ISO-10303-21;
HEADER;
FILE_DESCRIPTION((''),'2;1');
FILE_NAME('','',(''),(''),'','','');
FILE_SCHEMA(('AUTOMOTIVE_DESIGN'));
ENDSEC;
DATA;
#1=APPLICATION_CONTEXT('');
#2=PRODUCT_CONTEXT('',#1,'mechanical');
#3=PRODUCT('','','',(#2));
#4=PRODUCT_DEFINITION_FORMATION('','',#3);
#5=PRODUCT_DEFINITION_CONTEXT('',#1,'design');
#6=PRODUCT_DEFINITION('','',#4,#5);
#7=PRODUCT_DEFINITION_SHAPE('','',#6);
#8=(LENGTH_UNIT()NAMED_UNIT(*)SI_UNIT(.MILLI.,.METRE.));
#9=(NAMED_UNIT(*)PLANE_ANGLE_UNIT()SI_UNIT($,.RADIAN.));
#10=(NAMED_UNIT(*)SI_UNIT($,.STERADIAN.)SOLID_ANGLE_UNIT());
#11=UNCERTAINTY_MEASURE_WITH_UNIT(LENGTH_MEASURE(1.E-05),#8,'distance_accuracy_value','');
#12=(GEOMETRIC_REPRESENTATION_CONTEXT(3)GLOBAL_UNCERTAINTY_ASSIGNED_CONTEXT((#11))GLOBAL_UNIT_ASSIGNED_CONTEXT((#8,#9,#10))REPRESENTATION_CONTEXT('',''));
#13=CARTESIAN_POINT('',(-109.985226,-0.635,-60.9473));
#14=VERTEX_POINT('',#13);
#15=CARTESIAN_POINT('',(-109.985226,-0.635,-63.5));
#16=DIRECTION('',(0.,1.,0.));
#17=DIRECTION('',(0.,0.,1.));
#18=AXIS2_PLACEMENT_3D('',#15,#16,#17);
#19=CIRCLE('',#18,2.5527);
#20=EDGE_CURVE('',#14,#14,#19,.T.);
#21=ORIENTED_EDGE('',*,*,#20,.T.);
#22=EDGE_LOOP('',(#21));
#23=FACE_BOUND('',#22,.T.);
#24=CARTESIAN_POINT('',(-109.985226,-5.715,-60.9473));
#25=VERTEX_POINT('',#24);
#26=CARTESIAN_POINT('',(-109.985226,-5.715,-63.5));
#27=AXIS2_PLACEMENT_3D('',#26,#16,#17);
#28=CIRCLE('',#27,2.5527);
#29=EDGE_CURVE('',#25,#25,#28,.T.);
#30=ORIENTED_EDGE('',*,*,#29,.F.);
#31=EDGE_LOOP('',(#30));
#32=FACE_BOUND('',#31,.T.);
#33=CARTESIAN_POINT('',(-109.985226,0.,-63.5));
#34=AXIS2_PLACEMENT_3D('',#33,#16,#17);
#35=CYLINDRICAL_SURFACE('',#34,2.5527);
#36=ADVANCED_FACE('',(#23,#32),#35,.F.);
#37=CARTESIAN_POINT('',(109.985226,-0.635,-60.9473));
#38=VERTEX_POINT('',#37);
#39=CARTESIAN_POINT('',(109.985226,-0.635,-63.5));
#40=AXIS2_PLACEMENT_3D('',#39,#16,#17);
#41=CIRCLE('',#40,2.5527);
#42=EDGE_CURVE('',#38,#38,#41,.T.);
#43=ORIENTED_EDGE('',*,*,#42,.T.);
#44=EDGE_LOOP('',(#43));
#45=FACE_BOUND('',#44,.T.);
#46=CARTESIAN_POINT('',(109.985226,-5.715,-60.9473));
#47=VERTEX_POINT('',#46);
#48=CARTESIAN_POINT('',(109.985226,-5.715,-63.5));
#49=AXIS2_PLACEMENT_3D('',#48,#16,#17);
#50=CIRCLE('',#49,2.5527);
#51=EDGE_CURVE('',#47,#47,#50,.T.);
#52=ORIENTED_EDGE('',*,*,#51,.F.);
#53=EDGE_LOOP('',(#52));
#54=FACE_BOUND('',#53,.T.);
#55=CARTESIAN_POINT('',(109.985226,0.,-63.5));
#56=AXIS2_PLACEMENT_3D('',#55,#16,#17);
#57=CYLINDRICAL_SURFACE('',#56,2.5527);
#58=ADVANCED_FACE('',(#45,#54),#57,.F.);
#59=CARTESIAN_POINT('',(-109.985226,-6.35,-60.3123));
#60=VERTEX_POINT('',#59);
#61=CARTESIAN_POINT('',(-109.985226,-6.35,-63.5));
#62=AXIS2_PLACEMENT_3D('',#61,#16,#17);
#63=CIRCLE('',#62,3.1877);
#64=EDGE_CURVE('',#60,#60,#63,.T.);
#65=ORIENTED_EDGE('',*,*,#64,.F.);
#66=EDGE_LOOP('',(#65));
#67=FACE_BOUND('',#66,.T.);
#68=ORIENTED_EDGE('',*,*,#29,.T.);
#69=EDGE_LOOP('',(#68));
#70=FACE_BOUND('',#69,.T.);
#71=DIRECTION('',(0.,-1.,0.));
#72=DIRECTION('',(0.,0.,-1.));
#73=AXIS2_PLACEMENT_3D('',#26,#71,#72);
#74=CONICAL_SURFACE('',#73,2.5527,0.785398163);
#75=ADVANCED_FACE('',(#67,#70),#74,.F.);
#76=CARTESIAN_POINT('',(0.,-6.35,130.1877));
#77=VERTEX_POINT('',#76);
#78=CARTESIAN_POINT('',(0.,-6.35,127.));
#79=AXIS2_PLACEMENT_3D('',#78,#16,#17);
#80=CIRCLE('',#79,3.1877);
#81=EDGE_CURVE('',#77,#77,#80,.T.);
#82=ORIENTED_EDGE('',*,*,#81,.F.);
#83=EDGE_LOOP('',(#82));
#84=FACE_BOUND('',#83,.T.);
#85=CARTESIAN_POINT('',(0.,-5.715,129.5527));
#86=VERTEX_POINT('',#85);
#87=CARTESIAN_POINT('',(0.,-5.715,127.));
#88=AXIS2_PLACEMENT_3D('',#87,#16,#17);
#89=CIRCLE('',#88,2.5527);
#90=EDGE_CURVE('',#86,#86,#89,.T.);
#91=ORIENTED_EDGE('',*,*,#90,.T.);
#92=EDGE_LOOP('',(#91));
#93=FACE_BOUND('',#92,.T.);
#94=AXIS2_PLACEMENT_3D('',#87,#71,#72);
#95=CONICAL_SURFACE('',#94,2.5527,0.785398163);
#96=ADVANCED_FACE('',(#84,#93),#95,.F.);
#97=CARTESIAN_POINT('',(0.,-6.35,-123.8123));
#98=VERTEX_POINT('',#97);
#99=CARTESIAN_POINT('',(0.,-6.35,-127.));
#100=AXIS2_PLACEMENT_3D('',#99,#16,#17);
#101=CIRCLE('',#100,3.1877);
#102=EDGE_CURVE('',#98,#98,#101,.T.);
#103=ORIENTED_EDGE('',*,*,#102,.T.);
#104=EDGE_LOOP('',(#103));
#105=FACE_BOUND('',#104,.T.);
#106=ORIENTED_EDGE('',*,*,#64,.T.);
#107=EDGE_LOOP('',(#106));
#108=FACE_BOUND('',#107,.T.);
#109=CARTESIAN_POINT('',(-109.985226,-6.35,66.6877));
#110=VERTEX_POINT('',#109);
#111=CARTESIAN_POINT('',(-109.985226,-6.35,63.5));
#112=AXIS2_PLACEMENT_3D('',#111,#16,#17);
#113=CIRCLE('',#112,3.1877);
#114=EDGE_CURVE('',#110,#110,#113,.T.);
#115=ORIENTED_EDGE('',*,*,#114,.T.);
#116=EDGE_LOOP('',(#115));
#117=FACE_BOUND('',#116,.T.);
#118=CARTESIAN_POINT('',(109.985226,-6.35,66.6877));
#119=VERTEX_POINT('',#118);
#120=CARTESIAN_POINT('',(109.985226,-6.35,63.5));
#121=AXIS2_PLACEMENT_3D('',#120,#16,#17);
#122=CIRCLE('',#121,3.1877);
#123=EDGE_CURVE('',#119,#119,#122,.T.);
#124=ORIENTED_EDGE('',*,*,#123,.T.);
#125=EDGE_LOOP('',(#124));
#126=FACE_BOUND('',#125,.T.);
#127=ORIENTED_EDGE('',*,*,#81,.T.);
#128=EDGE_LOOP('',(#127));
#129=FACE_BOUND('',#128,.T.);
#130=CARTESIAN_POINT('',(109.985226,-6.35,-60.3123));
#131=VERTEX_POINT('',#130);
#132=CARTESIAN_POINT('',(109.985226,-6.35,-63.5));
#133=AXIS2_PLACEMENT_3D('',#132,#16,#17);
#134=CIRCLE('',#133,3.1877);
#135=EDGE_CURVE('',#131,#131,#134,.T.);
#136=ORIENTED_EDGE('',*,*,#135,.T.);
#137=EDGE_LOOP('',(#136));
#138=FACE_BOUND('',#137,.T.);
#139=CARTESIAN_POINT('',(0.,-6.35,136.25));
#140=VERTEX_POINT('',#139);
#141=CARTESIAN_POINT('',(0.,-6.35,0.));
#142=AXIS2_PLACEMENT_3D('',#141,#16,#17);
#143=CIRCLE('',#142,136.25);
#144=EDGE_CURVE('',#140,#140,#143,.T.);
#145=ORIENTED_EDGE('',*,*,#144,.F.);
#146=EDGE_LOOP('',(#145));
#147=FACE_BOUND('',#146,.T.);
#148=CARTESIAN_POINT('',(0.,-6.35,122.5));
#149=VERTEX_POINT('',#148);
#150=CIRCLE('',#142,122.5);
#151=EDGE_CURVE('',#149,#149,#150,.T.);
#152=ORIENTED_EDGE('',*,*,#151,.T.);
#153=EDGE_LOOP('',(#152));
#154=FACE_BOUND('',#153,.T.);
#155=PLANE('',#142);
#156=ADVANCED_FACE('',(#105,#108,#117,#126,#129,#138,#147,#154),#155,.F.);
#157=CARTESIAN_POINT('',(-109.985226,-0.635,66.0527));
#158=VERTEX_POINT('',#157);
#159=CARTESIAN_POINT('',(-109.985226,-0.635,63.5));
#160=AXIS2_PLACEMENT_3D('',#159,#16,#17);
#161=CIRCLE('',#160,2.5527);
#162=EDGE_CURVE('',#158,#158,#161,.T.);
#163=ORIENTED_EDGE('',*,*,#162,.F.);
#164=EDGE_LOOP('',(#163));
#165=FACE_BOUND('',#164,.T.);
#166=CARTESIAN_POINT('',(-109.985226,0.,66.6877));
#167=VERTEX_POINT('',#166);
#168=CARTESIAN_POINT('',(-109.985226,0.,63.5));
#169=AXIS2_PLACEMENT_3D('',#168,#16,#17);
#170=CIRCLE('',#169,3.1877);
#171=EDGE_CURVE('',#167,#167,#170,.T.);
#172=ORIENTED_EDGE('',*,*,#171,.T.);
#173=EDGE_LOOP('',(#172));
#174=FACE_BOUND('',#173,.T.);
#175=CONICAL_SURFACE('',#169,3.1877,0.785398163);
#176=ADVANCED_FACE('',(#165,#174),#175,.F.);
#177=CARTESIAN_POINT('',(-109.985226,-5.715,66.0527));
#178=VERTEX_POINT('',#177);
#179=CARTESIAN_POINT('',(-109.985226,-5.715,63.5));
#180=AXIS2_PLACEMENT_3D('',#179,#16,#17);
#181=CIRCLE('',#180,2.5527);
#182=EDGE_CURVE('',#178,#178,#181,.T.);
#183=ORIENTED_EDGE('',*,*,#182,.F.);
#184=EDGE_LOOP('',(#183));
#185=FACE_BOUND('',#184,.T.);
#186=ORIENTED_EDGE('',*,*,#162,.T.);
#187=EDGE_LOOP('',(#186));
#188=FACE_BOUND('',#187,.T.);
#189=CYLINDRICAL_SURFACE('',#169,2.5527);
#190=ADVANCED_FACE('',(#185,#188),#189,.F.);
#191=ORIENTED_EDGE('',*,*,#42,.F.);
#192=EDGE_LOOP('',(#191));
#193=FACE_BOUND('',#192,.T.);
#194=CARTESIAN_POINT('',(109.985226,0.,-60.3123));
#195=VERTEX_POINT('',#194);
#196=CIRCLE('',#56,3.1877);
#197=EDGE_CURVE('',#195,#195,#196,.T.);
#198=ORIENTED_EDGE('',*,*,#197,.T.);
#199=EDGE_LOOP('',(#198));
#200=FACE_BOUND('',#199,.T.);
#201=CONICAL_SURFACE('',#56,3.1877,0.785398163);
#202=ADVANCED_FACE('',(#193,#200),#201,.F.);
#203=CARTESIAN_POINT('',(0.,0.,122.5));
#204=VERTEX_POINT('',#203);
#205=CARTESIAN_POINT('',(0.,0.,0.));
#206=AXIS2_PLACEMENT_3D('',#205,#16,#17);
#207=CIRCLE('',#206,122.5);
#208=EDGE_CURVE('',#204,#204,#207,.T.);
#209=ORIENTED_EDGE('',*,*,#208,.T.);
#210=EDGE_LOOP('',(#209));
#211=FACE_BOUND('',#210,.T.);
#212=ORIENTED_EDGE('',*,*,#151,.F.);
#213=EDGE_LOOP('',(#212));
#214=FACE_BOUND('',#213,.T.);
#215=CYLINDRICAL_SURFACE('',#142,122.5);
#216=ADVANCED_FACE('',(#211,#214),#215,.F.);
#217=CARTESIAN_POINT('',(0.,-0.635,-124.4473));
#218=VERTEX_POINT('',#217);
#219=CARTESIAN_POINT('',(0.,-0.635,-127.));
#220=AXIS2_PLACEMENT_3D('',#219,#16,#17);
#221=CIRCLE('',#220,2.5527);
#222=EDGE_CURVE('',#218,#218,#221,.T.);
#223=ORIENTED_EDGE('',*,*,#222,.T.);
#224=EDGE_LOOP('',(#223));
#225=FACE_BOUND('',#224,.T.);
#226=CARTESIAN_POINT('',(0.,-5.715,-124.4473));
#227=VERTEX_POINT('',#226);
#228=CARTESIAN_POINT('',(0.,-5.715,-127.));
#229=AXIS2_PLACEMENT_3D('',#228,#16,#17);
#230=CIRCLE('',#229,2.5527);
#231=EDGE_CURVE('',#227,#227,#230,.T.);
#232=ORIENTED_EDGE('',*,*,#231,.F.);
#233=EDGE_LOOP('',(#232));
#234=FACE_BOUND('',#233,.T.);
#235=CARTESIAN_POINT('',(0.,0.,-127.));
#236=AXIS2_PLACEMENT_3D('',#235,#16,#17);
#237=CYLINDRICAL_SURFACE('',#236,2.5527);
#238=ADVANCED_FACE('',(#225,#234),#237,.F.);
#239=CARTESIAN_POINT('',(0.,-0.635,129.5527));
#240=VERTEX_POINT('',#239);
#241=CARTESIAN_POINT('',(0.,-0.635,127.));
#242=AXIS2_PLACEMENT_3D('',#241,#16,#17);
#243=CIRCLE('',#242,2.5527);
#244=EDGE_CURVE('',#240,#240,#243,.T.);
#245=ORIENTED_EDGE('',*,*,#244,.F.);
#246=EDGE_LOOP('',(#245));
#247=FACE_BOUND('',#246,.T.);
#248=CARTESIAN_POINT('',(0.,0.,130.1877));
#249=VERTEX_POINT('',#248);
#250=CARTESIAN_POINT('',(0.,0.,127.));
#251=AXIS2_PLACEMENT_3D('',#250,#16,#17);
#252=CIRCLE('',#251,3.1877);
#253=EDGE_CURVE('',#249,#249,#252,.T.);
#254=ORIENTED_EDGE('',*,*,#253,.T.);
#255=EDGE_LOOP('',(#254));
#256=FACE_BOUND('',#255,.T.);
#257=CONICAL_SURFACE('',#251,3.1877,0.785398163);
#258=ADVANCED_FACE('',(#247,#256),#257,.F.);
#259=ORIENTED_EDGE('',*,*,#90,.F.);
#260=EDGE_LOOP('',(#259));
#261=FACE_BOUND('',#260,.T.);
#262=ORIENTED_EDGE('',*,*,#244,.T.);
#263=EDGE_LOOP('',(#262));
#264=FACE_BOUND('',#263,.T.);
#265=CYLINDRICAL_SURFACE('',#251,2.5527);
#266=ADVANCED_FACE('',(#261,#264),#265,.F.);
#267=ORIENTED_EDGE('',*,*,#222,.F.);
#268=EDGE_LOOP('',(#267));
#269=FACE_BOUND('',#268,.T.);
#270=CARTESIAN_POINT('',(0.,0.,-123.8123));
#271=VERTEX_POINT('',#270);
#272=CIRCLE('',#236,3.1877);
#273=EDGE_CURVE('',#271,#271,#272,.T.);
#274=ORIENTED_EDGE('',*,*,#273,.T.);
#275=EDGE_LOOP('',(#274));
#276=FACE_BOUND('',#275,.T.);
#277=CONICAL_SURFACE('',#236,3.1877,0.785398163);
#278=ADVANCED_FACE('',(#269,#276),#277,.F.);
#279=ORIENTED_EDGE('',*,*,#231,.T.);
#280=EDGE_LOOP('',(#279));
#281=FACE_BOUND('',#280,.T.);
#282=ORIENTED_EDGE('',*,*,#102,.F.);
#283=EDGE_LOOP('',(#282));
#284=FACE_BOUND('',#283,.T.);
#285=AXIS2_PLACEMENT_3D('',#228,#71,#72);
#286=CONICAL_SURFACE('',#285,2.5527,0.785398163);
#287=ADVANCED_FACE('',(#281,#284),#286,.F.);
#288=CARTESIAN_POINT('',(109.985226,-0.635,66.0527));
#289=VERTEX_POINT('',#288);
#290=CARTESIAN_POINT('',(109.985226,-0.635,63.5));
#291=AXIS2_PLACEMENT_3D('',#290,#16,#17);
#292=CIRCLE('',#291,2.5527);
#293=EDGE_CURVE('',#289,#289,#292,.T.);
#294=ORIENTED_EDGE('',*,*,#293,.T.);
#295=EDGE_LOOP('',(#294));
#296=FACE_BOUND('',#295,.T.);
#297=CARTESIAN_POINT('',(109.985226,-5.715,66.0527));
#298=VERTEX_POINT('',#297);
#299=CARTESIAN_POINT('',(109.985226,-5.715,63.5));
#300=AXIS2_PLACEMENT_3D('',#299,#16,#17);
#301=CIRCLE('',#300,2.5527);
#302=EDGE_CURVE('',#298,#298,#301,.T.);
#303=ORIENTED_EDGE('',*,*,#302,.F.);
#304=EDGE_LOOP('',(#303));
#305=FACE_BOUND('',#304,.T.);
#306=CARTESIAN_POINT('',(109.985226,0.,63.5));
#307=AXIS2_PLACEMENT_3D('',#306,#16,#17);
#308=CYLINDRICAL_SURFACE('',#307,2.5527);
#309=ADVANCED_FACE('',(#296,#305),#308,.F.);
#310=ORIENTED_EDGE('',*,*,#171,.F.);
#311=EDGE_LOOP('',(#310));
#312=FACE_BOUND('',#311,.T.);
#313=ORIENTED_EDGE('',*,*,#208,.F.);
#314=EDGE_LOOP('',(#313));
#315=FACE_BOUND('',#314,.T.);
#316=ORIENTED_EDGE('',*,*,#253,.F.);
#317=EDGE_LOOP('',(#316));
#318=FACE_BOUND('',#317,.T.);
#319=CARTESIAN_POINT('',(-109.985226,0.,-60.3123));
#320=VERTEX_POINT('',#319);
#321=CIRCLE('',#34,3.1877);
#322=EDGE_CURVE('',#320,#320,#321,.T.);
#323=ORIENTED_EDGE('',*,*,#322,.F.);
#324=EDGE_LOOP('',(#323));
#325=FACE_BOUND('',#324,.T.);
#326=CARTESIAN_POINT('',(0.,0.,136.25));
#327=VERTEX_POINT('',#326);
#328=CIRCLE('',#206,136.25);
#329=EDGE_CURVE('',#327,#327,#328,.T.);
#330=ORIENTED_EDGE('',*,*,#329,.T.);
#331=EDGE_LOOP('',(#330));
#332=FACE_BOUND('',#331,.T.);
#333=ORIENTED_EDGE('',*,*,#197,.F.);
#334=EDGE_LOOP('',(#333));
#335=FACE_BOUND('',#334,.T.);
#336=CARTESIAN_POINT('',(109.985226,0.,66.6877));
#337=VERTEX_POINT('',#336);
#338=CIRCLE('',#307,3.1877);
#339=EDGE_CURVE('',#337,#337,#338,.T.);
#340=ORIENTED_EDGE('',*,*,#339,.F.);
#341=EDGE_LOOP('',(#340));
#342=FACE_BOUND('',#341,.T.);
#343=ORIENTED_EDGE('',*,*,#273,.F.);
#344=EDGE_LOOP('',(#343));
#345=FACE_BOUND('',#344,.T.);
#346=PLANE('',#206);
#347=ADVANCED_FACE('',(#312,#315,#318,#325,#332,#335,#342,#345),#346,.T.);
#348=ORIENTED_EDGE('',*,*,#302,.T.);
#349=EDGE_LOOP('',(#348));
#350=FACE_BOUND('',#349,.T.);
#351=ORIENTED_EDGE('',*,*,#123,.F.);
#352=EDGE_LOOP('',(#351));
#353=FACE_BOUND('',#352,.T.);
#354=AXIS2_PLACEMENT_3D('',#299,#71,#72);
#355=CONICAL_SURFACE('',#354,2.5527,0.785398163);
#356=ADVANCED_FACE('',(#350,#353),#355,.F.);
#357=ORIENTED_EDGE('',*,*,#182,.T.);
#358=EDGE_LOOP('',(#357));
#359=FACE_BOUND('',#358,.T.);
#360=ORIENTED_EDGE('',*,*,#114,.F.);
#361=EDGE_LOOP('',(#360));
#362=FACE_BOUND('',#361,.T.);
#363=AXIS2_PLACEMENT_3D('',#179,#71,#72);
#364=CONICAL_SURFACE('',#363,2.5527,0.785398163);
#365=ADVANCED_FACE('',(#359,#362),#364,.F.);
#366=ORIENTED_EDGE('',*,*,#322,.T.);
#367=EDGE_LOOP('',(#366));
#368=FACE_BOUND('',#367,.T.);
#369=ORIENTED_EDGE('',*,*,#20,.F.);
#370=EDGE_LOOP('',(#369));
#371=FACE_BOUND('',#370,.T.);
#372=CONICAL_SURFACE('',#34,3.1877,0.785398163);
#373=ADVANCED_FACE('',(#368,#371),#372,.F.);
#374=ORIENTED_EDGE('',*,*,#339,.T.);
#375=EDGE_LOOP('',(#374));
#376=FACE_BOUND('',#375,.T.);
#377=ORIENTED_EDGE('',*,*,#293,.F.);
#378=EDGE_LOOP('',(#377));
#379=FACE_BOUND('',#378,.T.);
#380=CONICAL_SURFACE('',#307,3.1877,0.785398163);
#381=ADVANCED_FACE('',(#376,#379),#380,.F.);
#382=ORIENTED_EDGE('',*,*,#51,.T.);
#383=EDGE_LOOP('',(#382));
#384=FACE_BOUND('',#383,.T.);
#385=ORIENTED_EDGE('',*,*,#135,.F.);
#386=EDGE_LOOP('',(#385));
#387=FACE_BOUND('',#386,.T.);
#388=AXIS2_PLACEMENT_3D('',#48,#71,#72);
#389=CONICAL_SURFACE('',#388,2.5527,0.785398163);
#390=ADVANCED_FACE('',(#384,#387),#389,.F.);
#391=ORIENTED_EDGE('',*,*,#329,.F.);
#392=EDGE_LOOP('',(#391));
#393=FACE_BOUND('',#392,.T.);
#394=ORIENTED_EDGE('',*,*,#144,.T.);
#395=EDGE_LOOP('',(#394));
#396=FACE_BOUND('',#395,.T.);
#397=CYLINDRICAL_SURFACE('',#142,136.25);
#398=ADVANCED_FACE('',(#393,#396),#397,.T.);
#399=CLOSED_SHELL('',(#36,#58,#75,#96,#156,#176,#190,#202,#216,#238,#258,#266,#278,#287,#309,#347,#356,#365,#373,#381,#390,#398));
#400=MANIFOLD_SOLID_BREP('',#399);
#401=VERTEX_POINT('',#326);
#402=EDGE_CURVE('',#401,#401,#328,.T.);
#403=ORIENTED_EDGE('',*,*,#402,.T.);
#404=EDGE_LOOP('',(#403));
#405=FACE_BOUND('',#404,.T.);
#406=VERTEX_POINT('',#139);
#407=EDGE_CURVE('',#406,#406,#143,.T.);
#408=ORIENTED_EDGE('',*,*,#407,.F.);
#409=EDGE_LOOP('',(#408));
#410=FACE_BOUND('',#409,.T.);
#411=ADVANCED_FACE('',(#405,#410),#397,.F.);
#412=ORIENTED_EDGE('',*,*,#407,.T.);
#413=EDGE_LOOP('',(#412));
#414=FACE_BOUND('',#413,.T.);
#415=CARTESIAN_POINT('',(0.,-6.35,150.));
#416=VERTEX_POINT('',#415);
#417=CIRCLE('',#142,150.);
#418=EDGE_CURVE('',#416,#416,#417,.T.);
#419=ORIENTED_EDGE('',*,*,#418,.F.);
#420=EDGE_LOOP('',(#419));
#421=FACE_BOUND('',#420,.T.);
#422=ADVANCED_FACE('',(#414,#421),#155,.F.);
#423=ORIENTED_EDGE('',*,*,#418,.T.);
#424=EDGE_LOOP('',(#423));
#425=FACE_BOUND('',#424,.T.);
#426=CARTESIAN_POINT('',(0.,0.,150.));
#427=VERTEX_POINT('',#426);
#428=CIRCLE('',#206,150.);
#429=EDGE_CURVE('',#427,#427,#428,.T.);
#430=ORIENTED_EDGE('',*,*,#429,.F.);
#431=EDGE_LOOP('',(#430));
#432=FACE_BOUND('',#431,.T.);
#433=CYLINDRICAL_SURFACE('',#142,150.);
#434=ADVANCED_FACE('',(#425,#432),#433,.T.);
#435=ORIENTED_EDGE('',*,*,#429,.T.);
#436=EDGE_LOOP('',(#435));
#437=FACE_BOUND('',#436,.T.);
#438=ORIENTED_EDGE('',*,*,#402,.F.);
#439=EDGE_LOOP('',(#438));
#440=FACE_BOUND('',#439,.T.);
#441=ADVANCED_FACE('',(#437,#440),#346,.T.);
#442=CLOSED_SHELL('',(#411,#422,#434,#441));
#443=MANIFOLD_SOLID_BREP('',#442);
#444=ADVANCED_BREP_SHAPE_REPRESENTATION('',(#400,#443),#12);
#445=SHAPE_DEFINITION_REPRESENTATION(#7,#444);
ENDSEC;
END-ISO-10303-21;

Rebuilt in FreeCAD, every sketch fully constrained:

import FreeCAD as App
import Part
import Sketcher

V = App.Vector
Q = App.Units.Quantity


def add_polygon(sketch, points):
    """Adds a closed chain of lines whose ends are joined by coincident constraints."""
    first, n = sketch.GeometryCount, len(points)
    for a, b in zip(points, points[1:] + points[:1]):
        sketch.addGeometry(Part.LineSegment(App.Vector(*a, 0), App.Vector(*b, 0)), False)
    for i in range(n):
        sketch.addConstraint(Sketcher.Constraint("Coincident", first + i, 2, first + (i + 1) % n, 1))

doc = App.newDocument("Part")
params = doc.addObject("Spreadsheet::Sheet", "Params")
for row, (alias, value) in enumerate([
    ("sketch1_diameter", "300 mm"),
    ("sketch1_diameter2", "272.5 mm"),
    ("pad1_length", "6.35 mm"),
    ("sketch2_diameter", "245 mm"),
    ("sketch2_diameter2", "272.5 mm"),
    ("pad2_length", "6.35 mm"),
    ("sketch3_width", "6.35 mm"),
    ("sketch3_width2", "5.08 mm"),
    ("groove_angle", "360 deg"),
    ("linearpattern_pitch", "127 mm"),
    ("linearpattern2_pitch", "219.970453 mm"),
    ("linearpattern3_pitch", "254 mm"),
    ("linearpattern4_pitch", "219.970453 mm"),
    ("linearpattern5_pitch", "127 mm"),
], start=1):
    params.set(f"A{row}", alias)
    params.set(f"B{row}", "=" + value)
    params.setAlias(f"B{row}", alias)

body = doc.addObject("PartDesign::Body", "Body")

sketch1 = body.newObject("Sketcher::SketchObject", "Sketch")
sketch1.AttachmentSupport = (doc.getObject("XZ_Plane"), [""])
sketch1.MapMode = "FlatFace"
sketch1.addGeometry([
    Part.Circle(V(0, 0, 0), V(0, 0, 1), 150),
    Part.Circle(V(0, 0, 0), V(0, 0, 1), 136),
], False)
sketch1.addConstraint([
    Sketcher.Constraint("Coincident", 0, 3, -1, 1),
    Sketcher.Constraint("Coincident", 1, 3, -1, 1),
    Sketcher.Constraint("Diameter", 0, Q("300 mm")),
    Sketcher.Constraint("Diameter", 1, Q("272.5 mm")),
])
sketch1.setExpression("Constraints[2]", "Params.sketch1_diameter")
sketch1.setExpression("Constraints[3]", "Params.sketch1_diameter2")
pad1 = body.newObject("PartDesign::Pad", "Pad")
pad1.Profile = sketch1
pad1.setExpression("Length", "Params.pad1_length")
body2 = doc.addObject("PartDesign::Body", "Body001")

sketch2 = body2.newObject("Sketcher::SketchObject", "Sketch001")
sketch2.AttachmentSupport = (doc.getObject("XZ_Plane001"), [""])
sketch2.MapMode = "FlatFace"
sketch2.addGeometry([
    Part.Circle(V(0, 0, 0), V(0, 0, 1), 136),
    Part.Circle(V(0, 0, 0), V(0, 0, 1), 122),
], False)
sketch2.addConstraint([
    Sketcher.Constraint("Coincident", 0, 3, -1, 1),
    Sketcher.Constraint("Coincident", 1, 3, -1, 1),
    Sketcher.Constraint("Diameter", 1, Q("245 mm")),
    Sketcher.Constraint("Diameter", 0, Q("272.5 mm")),
])
sketch2.setExpression("Constraints[2]", "Params.sketch2_diameter")
sketch2.setExpression("Constraints[3]", "Params.sketch2_diameter2")
pad2 = body2.newObject("PartDesign::Pad", "Pad001")
pad2.Profile = sketch2
pad2.setExpression("Length", "Params.pad2_length")

sketch3 = body2.newObject("Sketcher::SketchObject", "Sketch002")
sketch3.AttachmentSupport = (doc.getObject("YZ_Plane001"), [""])
sketch3.MapMode = "FlatFace"
sketch3.AttachmentOffset = App.Placement(V(0, 0, -109.985226), App.Rotation())
add_polygon(sketch3, [(-6.3, -63.5), (0, -63.5), (0, -60.3), (-0.6, -60.9), (-5.7, -60.9), (-6.3, -60.3)])
sketch3.addGeometry(Part.LineSegment(V(0, -63.5, 0), V(-6.3, -63.5, 0)), True)
sketch3.addConstraint([
    Sketcher.Constraint("Horizontal", 0),
    Sketcher.Constraint("Vertical", 1),
    Sketcher.Constraint("Horizontal", 3),
    Sketcher.Constraint("Vertical", 5),
    Sketcher.Constraint("Horizontal", 6),
    Sketcher.Constraint("Coincident", 6, 1, 0, 2),
    Sketcher.Constraint("PointOnObject", 0, 2, -2),
    Sketcher.Constraint("Perpendicular", 2, 4),
    Sketcher.Constraint("Horizontal", 1, 2, 4, 2),
    Sketcher.Constraint("Vertical", 4, 2, 6, 2),
    Sketcher.Constraint("Equal", 2, 4),
    Sketcher.Constraint("DistanceX", 0, 1, 0, 2, Q("6.35 mm")),
    Sketcher.Constraint("DistanceX", 3, 2, 3, 1, Q("5.08 mm")),
    Sketcher.Constraint("DistanceY", 0, 2, -1, 1, Q("63.5 mm")),
    Sketcher.Constraint("DistanceY", 1, 1, 1, 2, Q("3.1877 mm")),
])
sketch3.setExpression("Constraints[17]", "Params.sketch3_width")
sketch3.setExpression("Constraints[18]", "Params.sketch3_width2")
groove = body2.newObject("PartDesign::Groove", "Groove")
groove.Profile = sketch3
groove.ReferenceAxis = (sketch3, ["Axis0"])
groove.setExpression("Angle", "Params.groove_angle")
doc.recompute()

datumline = body2.newObject("PartDesign::Line", "DatumLine")
datumline.Placement = App.Placement(V(0, 0, 0), App.Rotation(V(0, 0, 1), V(0.866025404, 0, -0.5)))
linearpattern = body2.newObject("PartDesign::LinearPattern", "LinearPattern")
linearpattern.Originals = [groove]
linearpattern.Direction = (datumline, [""])
linearpattern.Mode = "offset"
linearpattern.setExpression("Offset", "Params.linearpattern_pitch")
linearpattern.Occurrences = 2
body2.Tip = linearpattern
doc.recompute()

linearpattern2 = body2.newObject("PartDesign::LinearPattern", "LinearPattern001")
linearpattern2.Originals = [groove]
linearpattern2.Direction = (doc.getObject("X_Axis001"), [""])
linearpattern2.Mode = "offset"
linearpattern2.setExpression("Offset", "Params.linearpattern2_pitch")
linearpattern2.Occurrences = 2
body2.Tip = linearpattern2
doc.recompute()

datumline2 = body2.newObject("PartDesign::Line", "DatumLine001")
datumline2.Placement = App.Placement(V(0, 0, 0), App.Rotation(V(0, 0, 1), V(0.866025404, 0, 0.5)))
linearpattern3 = body2.newObject("PartDesign::LinearPattern", "LinearPattern002")
linearpattern3.Originals = [groove]
linearpattern3.Direction = (datumline2, [""])
linearpattern3.Mode = "offset"
linearpattern3.setExpression("Offset", "Params.linearpattern3_pitch")
linearpattern3.Occurrences = 2
body2.Tip = linearpattern3
doc.recompute()

datumline3 = body2.newObject("PartDesign::Line", "DatumLine002")
datumline3.Placement = App.Placement(V(0, 0, 0), App.Rotation(V(0, 0, 1), V(0.5, 0, 0.866025404)))
linearpattern4 = body2.newObject("PartDesign::LinearPattern", "LinearPattern003")
linearpattern4.Originals = [groove]
linearpattern4.Direction = (datumline3, [""])
linearpattern4.Mode = "offset"
linearpattern4.setExpression("Offset", "Params.linearpattern4_pitch")
linearpattern4.Occurrences = 2
body2.Tip = linearpattern4
doc.recompute()

linearpattern5 = body2.newObject("PartDesign::LinearPattern", "LinearPattern004")
linearpattern5.Originals = [groove]
linearpattern5.Direction = (doc.getObject("Z_Axis001"), [""])
linearpattern5.Mode = "offset"
linearpattern5.setExpression("Offset", "Params.linearpattern5_pitch")
linearpattern5.Occurrences = 2
body2.Tip = linearpattern5

doc.recompute()
